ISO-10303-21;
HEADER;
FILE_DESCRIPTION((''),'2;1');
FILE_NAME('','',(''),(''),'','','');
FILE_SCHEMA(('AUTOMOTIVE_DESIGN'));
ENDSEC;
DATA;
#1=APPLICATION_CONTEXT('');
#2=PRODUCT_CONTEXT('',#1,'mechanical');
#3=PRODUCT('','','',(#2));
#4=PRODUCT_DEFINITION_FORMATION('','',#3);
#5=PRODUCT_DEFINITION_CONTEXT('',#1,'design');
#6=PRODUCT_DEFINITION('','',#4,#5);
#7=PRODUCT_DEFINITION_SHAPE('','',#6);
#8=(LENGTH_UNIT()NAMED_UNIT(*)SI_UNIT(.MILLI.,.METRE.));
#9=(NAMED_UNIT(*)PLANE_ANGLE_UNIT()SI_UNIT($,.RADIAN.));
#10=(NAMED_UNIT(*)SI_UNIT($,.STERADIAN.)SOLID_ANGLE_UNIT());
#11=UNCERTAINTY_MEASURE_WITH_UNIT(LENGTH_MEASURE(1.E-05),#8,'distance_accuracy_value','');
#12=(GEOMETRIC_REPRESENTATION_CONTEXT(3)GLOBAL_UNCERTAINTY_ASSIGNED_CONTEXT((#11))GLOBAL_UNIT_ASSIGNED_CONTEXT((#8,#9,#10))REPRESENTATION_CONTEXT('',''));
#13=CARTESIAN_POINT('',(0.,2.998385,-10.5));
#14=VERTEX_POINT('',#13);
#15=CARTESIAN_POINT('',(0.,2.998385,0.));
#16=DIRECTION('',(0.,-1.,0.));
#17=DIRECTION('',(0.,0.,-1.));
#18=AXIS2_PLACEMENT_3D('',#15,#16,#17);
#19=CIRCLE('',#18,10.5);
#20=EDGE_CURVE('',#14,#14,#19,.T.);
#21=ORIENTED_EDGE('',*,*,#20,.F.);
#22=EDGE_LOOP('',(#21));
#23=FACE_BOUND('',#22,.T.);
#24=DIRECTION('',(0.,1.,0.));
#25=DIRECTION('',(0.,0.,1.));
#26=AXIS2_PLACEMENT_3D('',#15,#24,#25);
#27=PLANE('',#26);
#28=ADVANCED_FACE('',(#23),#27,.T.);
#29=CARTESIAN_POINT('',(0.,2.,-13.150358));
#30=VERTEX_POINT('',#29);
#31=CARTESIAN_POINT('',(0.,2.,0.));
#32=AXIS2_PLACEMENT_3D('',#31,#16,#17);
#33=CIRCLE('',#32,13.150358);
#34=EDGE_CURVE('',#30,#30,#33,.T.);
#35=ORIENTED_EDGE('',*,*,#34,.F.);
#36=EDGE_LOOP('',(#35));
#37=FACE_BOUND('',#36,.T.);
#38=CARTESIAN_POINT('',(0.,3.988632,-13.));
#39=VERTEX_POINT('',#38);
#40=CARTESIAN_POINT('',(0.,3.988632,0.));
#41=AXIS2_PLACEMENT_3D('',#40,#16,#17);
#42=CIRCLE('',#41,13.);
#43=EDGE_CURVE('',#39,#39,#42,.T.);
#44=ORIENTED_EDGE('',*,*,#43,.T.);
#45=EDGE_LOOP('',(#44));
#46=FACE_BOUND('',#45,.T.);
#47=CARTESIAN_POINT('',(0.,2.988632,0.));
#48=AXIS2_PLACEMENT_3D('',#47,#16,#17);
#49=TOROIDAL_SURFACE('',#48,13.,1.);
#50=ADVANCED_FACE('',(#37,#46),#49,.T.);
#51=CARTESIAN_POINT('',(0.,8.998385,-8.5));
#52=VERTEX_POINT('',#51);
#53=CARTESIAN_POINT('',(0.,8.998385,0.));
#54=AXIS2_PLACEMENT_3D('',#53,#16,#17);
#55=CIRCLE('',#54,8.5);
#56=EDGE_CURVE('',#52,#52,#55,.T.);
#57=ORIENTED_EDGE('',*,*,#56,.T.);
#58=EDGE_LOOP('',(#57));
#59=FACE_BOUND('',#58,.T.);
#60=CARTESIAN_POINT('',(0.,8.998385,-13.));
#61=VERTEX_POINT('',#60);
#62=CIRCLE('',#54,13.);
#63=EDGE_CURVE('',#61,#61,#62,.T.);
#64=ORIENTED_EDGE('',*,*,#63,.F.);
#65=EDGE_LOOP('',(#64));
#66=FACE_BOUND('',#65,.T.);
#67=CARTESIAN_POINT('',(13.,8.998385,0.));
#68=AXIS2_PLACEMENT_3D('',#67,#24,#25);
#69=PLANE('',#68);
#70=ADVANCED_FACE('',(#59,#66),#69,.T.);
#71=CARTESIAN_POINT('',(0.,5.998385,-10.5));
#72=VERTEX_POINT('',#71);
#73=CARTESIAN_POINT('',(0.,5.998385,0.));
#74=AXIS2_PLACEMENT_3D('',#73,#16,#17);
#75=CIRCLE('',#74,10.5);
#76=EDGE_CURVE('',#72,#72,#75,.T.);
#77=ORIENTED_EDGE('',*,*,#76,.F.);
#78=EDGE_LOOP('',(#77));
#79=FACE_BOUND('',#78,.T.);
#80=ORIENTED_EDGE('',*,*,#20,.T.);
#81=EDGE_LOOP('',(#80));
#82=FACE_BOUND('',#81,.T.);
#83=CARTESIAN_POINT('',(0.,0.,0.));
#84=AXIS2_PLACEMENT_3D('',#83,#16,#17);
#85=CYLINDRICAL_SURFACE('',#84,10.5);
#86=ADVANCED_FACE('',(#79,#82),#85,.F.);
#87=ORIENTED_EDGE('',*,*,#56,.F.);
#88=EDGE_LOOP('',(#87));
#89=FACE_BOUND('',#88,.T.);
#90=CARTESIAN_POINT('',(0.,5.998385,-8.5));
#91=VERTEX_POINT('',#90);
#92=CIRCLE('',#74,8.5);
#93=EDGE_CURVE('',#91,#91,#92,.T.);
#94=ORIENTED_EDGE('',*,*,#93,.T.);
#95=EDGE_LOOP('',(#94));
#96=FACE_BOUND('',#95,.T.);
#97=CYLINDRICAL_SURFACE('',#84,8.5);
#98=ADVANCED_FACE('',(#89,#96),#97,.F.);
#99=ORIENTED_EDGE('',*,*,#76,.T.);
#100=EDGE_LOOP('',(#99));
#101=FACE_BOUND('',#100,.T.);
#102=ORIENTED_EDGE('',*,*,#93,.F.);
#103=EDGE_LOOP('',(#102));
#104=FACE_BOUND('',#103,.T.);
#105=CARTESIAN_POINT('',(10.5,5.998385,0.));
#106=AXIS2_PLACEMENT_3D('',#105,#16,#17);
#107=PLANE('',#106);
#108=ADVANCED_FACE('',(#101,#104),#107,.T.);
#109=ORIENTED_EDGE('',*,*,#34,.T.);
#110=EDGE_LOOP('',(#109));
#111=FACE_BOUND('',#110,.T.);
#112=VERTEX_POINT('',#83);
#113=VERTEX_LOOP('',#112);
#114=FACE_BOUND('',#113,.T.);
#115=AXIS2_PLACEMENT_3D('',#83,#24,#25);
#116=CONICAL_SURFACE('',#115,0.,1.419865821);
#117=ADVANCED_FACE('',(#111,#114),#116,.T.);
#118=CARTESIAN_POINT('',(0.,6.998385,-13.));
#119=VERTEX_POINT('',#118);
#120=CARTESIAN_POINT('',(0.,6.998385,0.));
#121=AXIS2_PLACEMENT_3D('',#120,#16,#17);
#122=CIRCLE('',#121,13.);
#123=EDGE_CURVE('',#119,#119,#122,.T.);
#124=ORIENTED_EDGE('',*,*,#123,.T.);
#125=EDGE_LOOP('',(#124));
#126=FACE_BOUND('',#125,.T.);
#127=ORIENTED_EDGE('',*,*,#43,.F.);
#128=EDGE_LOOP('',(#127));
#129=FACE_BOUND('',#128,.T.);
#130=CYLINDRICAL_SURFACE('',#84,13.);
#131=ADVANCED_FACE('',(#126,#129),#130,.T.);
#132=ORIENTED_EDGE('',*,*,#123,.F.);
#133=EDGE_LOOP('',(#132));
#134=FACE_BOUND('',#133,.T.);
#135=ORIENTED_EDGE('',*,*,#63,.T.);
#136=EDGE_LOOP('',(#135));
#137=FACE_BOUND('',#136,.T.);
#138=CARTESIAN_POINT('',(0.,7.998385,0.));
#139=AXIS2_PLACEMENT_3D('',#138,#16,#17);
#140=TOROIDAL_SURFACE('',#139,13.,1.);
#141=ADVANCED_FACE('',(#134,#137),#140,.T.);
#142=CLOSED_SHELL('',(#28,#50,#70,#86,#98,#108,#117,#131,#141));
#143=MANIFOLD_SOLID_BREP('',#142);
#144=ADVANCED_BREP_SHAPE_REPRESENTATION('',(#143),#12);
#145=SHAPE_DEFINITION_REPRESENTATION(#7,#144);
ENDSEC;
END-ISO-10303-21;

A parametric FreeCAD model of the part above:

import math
import FreeCAD as App
import Part
import Sketcher
Q = App.Units.Quantity

doc = App.newDocument("Part")
body = doc.addObject("PartDesign::Body", "Body")

# Sketch on XY plane
sketch1 = doc.addObject("Sketcher::SketchObject", "Sketch")
body.addObject(sketch1)
sketch1.AttachmentSupport = (doc.XY_Plane, [""])
sketch1.MapMode = "FlatFace"
sketch1.addGeometry([
    Part.LineSegment(App.Vector(0, 0, 0), App.Vector(13.150358, 2, 0)),  # 0
    Part.ArcOfCircle(Part.Circle(App.Vector(13, 2.988632, 0), App.Vector(0, 0, 1), 1), math.radians(-81.352319), math.radians(90)),  # 1
    Part.LineSegment(App.Vector(13, 3.988632, 0), App.Vector(13, 6.998385, 0)),  # 2
    Part.ArcOfCircle(Part.Circle(App.Vector(13, 7.998385, 0), App.Vector(0, 0, 1), 1), math.radians(-90), math.radians(90)),  # 3
    Part.LineSegment(App.Vector(13, 8.998385, 0), App.Vector(8.5, 8.998385, 0)),  # 4
    Part.LineSegment(App.Vector(8.5, 8.998385, 0), App.Vector(8.5, 5.998385, 0)),  # 5
    Part.LineSegment(App.Vector(8.5, 5.998385, 0), App.Vector(10.5, 5.998385, 0)),  # 6
    Part.LineSegment(App.Vector(10.5, 5.998385, 0), App.Vector(10.5, 2.998385, 0)),  # 7
    Part.LineSegment(App.Vector(10.5, 2.998385, 0), App.Vector(0, 2.998385, 0)),  # 8
    Part.LineSegment(App.Vector(0, 2.998385, 0), App.Vector(0, 0, 0)),  # 9
], False)
sketch1.addConstraint([
    Sketcher.Constraint("Tangent", 0, 2, 1, 1),
    Sketcher.Constraint("Coincident", 1, 2, 2, 1),
    Sketcher.Constraint("Coincident", 2, 2, 3, 1),
    Sketcher.Constraint("Tangent", 3, 2, 4, 1),
    Sketcher.Constraint("Coincident", 4, 2, 5, 1),
    Sketcher.Constraint("Coincident", 5, 2, 6, 1),
    Sketcher.Constraint("Coincident", 6, 2, 7, 1),
    Sketcher.Constraint("Coincident", 7, 2, 8, 1),
    Sketcher.Constraint("Coincident", 8, 2, 9, 1),
    Sketcher.Constraint("Coincident", 9, 2, 0, 1),
    Sketcher.Constraint("Vertical", 2),
    Sketcher.Constraint("Horizontal", 4),
    Sketcher.Constraint("Vertical", 5),
    Sketcher.Constraint("Horizontal", 6),
    Sketcher.Constraint("Vertical", 7),
    Sketcher.Constraint("Horizontal", 8),
    Sketcher.Constraint("Vertical", 9),
    Sketcher.Constraint("Coincident", 9, 2, -1, 1),
    Sketcher.Constraint("Equal", 1, 3),
    Sketcher.Constraint("Vertical", 1, 3, 3, 3),
    Sketcher.Constraint("Vertical", 3, 3, 1, 2),
    Sketcher.Constraint("Equal", 5, 7),
    Sketcher.Constraint("Radius", 1, Q("1 mm")),
    Sketcher.Constraint("DistanceX", 6, 1, 6, 2, Q("2 mm")),
    Sketcher.Constraint("DistanceY", 5, 2, 5, 1, Q("3 mm")),
    Sketcher.Constraint("DistanceX", 4, 2, 4, 1, Q("4.5 mm")),
    Sketcher.Constraint("DistanceX", 8, 2, 8, 1, Q("10.5 mm")),
    Sketcher.Constraint("DistanceY", -1, 1, 0, 2, Q("2 mm")),
    Sketcher.Constraint("DistanceY", 2, 1, 2, 2, Q("3.009753 mm")),
])
revolution = doc.addObject("PartDesign::Revolution", "Revolution")
body.addObject(revolution)
revolution.Profile = sketch1
revolution.ReferenceAxis = (sketch1, ["V_Axis"])
revolution.Angle = 360

doc.recompute()
